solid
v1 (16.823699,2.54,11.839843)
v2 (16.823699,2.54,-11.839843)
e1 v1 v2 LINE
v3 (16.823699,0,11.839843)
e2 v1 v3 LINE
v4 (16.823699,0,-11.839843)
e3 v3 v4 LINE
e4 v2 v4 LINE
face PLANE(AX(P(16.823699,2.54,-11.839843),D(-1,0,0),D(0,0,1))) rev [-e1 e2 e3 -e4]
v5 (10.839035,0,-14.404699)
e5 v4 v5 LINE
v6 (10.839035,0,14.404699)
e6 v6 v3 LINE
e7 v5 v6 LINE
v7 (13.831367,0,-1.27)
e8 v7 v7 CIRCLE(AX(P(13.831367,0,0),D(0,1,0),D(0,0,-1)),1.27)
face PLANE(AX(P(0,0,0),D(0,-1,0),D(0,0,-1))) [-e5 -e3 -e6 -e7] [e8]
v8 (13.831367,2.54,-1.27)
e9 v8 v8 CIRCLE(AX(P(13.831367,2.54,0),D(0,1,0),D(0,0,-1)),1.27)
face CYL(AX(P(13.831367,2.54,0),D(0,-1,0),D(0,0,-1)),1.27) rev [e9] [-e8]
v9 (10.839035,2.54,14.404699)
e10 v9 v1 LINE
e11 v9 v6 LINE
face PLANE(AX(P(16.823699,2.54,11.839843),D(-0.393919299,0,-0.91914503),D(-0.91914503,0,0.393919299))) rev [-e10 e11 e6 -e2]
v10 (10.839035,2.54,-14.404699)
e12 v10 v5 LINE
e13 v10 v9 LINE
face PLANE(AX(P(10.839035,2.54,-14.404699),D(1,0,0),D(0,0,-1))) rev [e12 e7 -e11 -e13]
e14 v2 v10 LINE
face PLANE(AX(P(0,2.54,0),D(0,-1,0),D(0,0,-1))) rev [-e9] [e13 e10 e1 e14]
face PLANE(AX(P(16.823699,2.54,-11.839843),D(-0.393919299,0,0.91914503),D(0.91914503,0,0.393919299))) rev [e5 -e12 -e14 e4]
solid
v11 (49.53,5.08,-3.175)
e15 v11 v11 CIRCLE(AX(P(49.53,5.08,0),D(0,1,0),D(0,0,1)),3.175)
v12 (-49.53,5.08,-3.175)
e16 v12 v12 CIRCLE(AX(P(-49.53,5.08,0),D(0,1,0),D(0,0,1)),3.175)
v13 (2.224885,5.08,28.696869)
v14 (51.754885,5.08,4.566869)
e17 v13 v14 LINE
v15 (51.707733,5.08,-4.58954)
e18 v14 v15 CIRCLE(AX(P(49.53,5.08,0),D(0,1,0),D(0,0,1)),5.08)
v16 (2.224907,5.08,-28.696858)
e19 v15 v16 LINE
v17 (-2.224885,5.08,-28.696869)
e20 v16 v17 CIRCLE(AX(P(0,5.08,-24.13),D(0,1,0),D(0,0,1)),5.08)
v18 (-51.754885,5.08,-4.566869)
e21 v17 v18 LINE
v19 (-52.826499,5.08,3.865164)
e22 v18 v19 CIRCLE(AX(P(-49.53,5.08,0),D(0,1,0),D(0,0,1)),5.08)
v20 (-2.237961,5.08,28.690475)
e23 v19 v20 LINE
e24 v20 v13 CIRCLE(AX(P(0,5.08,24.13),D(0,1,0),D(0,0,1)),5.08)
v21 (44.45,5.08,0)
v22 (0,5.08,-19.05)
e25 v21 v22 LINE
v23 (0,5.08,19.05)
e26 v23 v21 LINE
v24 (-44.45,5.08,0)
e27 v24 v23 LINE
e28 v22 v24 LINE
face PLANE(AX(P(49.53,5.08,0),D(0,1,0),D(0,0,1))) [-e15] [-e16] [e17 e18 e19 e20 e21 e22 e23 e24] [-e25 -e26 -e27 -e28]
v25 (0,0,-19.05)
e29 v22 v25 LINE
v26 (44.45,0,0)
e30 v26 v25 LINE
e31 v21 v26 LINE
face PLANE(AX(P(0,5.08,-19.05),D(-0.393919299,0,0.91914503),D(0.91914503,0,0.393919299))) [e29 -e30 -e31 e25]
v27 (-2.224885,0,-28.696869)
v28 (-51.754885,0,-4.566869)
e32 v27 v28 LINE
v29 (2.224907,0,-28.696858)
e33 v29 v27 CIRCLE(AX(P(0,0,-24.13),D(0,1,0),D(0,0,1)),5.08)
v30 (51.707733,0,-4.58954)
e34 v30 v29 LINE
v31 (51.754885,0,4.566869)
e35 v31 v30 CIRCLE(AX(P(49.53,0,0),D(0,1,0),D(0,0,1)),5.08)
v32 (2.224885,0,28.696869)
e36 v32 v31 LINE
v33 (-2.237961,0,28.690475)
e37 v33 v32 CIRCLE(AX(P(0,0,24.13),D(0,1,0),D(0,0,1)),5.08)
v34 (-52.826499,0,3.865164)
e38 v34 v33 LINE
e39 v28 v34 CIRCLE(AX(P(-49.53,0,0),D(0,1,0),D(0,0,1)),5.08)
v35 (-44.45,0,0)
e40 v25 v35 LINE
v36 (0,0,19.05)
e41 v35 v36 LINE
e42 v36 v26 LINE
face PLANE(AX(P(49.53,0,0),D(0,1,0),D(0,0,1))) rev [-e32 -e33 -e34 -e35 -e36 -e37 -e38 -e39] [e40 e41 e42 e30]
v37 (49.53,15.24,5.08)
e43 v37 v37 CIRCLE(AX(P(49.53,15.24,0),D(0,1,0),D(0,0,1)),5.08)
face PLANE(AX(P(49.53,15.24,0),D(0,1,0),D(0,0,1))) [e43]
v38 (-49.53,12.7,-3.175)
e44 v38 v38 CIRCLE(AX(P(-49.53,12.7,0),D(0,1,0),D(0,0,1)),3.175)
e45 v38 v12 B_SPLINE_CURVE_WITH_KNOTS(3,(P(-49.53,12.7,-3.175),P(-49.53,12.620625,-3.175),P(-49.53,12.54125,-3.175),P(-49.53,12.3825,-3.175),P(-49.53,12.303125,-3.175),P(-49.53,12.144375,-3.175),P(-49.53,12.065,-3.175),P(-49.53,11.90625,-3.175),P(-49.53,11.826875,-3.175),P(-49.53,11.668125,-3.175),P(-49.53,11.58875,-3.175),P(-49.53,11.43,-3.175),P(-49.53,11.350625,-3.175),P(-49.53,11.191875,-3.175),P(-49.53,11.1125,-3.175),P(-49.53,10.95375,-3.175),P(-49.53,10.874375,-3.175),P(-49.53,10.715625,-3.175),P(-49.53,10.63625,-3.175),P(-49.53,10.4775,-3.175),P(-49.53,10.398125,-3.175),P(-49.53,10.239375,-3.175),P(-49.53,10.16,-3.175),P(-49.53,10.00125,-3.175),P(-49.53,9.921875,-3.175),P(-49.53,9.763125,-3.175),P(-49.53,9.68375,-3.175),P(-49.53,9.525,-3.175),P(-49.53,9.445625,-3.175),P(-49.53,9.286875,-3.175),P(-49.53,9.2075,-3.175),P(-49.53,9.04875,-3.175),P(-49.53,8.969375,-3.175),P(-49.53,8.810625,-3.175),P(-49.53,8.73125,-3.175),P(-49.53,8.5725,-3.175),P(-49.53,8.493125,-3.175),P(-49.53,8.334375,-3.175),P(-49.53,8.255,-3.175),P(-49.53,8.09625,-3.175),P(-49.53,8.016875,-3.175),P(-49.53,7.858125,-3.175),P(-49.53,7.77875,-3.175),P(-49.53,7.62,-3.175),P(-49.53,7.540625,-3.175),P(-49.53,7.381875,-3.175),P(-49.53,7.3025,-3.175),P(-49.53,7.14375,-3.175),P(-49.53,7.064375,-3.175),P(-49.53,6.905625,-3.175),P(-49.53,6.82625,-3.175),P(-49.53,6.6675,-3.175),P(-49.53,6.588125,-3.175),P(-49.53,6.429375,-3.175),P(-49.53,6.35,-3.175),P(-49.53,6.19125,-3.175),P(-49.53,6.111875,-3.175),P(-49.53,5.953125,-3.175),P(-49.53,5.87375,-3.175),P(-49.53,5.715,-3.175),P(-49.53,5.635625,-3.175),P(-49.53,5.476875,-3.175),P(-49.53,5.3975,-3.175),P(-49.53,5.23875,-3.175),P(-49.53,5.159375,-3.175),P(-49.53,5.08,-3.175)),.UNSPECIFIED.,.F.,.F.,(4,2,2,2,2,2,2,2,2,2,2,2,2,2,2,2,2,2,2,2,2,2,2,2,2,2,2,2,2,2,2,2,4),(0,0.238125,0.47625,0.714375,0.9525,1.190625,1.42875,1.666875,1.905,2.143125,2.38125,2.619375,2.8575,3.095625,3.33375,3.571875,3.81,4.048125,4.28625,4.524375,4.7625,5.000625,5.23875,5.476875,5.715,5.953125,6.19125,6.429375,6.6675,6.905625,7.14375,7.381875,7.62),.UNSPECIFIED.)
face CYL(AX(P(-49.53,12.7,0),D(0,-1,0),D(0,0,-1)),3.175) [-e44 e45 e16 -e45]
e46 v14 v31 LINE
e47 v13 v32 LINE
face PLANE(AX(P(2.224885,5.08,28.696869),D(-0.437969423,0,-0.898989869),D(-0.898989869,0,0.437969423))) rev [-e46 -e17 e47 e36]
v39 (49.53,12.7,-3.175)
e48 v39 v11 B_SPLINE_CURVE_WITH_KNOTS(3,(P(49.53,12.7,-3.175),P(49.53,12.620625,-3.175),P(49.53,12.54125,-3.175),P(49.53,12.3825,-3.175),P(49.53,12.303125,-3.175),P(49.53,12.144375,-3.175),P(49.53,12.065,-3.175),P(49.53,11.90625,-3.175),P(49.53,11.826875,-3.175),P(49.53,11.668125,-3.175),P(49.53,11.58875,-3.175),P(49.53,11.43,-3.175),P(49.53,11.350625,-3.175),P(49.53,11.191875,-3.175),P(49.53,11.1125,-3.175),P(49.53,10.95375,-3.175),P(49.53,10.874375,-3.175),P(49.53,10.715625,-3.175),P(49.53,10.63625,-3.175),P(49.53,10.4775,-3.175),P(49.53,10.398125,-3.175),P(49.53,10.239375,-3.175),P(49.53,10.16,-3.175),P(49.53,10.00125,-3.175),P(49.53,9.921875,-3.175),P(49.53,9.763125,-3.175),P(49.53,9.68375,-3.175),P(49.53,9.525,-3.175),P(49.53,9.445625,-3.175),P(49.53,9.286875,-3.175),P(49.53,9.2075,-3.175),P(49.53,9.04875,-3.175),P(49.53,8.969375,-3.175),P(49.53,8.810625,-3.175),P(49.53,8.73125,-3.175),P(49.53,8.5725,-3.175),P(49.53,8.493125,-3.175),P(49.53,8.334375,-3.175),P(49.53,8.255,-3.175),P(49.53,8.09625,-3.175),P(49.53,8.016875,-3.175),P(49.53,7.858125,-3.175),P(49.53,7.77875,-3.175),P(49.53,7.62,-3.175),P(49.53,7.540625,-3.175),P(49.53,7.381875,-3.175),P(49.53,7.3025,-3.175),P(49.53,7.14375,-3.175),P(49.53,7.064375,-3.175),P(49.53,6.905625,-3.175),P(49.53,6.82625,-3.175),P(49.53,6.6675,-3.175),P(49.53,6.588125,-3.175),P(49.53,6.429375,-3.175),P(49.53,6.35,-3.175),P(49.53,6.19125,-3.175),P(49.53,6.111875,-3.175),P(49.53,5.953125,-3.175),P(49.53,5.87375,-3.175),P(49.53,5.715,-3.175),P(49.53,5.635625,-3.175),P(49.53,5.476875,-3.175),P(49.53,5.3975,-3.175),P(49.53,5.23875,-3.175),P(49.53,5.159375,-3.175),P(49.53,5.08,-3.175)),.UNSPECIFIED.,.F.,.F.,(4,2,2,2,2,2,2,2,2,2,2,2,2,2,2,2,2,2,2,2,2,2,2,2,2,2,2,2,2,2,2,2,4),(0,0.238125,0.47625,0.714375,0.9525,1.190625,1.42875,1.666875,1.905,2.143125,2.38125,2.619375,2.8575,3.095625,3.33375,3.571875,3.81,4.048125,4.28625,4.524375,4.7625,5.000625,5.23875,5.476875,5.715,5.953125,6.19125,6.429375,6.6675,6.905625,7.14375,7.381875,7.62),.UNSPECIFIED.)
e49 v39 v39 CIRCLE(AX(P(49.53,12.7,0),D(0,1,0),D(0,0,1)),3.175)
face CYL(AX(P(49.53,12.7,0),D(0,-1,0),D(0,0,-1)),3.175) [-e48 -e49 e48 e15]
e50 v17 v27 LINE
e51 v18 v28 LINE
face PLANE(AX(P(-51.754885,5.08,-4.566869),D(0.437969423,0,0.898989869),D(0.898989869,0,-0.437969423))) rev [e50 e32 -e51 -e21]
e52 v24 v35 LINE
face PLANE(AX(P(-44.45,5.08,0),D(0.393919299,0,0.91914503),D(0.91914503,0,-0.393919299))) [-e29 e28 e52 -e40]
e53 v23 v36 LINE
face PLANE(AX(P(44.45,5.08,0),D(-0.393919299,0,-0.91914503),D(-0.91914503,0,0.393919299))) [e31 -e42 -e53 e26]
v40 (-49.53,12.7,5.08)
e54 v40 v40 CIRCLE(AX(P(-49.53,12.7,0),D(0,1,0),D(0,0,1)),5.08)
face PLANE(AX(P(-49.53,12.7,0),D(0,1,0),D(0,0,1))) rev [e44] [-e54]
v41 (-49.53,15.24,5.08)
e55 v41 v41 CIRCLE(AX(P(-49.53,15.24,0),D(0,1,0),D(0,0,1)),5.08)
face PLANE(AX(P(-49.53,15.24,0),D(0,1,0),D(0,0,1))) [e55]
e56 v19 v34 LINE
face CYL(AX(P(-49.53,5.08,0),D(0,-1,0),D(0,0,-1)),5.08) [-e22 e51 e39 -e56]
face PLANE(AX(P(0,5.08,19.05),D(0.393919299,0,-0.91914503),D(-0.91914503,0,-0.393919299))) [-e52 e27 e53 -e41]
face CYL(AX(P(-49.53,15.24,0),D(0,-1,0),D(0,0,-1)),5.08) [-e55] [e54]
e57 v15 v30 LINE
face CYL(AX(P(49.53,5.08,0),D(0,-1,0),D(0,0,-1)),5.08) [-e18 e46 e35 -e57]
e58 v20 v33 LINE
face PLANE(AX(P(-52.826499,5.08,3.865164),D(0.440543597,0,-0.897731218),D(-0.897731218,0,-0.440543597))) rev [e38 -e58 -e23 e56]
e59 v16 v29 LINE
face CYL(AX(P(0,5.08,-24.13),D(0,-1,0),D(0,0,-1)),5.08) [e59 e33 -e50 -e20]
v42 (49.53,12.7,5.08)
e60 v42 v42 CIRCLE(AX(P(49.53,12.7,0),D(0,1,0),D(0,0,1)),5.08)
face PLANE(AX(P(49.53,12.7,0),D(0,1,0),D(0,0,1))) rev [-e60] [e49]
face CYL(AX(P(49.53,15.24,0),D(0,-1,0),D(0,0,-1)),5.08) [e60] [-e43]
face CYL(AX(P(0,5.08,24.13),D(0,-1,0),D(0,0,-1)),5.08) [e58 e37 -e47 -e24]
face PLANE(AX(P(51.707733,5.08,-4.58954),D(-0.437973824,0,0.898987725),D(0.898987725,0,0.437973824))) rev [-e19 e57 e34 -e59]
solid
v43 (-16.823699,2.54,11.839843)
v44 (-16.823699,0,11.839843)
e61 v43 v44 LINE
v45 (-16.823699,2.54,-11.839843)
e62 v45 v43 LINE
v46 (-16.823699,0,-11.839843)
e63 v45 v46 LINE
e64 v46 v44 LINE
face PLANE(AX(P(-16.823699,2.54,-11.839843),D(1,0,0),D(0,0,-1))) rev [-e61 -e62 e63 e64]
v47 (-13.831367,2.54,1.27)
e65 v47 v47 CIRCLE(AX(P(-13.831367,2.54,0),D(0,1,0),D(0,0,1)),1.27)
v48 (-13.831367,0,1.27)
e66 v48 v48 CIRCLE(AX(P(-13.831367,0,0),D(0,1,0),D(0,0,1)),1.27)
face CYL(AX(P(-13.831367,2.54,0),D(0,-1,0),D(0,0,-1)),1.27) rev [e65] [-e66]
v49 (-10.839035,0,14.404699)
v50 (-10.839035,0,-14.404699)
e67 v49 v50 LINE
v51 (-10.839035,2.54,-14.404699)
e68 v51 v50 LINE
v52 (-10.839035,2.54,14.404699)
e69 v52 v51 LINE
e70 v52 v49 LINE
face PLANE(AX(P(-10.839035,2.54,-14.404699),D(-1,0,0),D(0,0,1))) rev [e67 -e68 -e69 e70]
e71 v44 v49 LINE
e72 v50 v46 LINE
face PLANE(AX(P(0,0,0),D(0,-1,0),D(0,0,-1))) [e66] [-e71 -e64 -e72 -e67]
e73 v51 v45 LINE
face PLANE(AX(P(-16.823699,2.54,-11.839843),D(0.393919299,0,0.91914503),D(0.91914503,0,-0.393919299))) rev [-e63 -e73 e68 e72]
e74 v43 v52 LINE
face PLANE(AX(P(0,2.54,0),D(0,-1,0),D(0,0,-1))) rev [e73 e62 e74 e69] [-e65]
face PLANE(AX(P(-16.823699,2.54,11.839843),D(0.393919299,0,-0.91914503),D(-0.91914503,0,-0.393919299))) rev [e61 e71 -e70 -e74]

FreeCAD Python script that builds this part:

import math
import FreeCAD as App
import Part
import Sketcher
from FreeCAD import Vector
Q = App.Units.Quantity


def add_polygon(sketch, points):
    """Adds a closed chain of lines whose ends are joined by coincident constraints."""
    first, n = sketch.GeometryCount, len(points)
    for a, b in zip(points, points[1:] + points[:1]):
        sketch.addGeometry(Part.LineSegment(App.Vector(*a, 0), App.Vector(*b, 0)), False)
    for i in range(n):
        sketch.addConstraint(Sketcher.Constraint("Coincident", first + i, 2, first + (i + 1) % n, 1))

doc = App.newDocument("Part")
body = doc.addObject("PartDesign::Body", "Body")

# Sketch on XZ plane
sketch1 = body.newObject("Sketcher::SketchObject", "Sketch")
sketch1.AttachmentSupport = (doc.getObject("XZ_Plane"), [""])
sketch1.MapMode = "FlatFace"
sketch1.addGeometry(Part.LineSegment(Vector(-2.2, -28.7, 0), Vector(-51.8, -4.6, 0)), False)  # 0
sketch1.addGeometry(Part.ArcOfCircle(Part.Circle(Vector(-49.5, 0, 0), Vector(0, 0, 1), 5.1), math.radians(130), math.radians(244)), False)  # 1
sketch1.addGeometry(Part.LineSegment(Vector(-52.8, 3.9, 0), Vector(-2.2, 28.7, 0)), False)  # 2
sketch1.addGeometry(Part.ArcOfCircle(Part.Circle(Vector(0, 24.1, 0), Vector(0, 0, 1), 5.1), math.radians(64), math.radians(116)), False)  # 3
sketch1.addGeometry(Part.LineSegment(Vector(2.2, 28.7, 0), Vector(51.8, 4.6, 0)), False)  # 4
sketch1.addGeometry(Part.ArcOfCircle(Part.Circle(Vector(49.5, 0, 0), Vector(0, 0, 1), 5.1), math.radians(-65), math.radians(64)), False)  # 5
sketch1.addGeometry(Part.LineSegment(Vector(51.7, -4.6, 0), Vector(2.2, -28.7, 0)), False)  # 6
sketch1.addGeometry(Part.ArcOfCircle(Part.Circle(Vector(0, -24.1, 0), Vector(0, 0, 1), 5.1), math.radians(-116), math.radians(-64)), False)  # 7
add_polygon(sketch1, [(-44.5, 0), (0, -19.1), (44.5, 0), (0, 19.1)])  # lines 8-11
sketch1.addConstraint(Sketcher.Constraint("Tangent", 0, 2, 1, 2))
sketch1.addConstraint(Sketcher.Constraint("Coincident", 1, 1, 2, 1))
sketch1.addConstraint(Sketcher.Constraint("Tangent", 2, 2, 3, 2))
sketch1.addConstraint(Sketcher.Constraint("Tangent", 3, 1, 4, 1))
sketch1.addConstraint(Sketcher.Constraint("Tangent", 4, 2, 5, 2))
sketch1.addConstraint(Sketcher.Constraint("Coincident", 5, 1, 6, 1))
sketch1.addConstraint(Sketcher.Constraint("Tangent", 6, 2, 7, 2))
sketch1.addConstraint(Sketcher.Constraint("Tangent", 7, 1, 0, 1))
sketch1.addConstraint(Sketcher.Constraint("Equal", 1, 3))
sketch1.addConstraint(Sketcher.Constraint("Equal", 3, 5))
sketch1.addConstraint(Sketcher.Constraint("Equal", 5, 7))
sketch1.addConstraint(Sketcher.Constraint("Symmetric", 1, 3, 5, 3, -1, 1))
sketch1.addConstraint(Sketcher.Constraint("Symmetric", 3, 3, 7, 3, -1, 1))
sketch1.addConstraint(Sketcher.Constraint("Symmetric", 8, 2, 10, 2, -1, 1))
sketch1.addConstraint(Sketcher.Constraint("Symmetric", 9, 2, 11, 2, -1, 1))
sketch1.addConstraint(Sketcher.Constraint("PointOnObject", 1, 3, -1))
sketch1.addConstraint(Sketcher.Constraint("PointOnObject", 3, 3, -2))
sketch1.addConstraint(Sketcher.Constraint("PointOnObject", 8, 2, -2))
sketch1.addConstraint(Sketcher.Constraint("PointOnObject", 9, 2, -1))
sketch1.addConstraint(Sketcher.Constraint("Radius", 1, Q("0.2 in")))
sketch1.addConstraint(Sketcher.Constraint("DistanceX", 1, 3, 5, 3, Q("3.9 in")))
sketch1.addConstraint(Sketcher.Constraint("DistanceY", 7, 3, 3, 3, Q("1.9 in")))
sketch1.addConstraint(Sketcher.Constraint("DistanceY", 7, 3, 8, 2, Q("0.2 in")))
sketch1.addConstraint(Sketcher.Constraint("DistanceX", 9, 2, 5, 3, Q("0.2 in")))
sketch1.addConstraint(Sketcher.Constraint("DistanceX", 1, 1, -1, 1, 52.826499))
sketch1.addConstraint(Sketcher.Constraint("DistanceY", 5, 1, -1, 1, 4.58954))
pad1 = body.newObject("PartDesign::Pad", "Pad")
pad1.Profile = sketch1
pad1.Length = Q("0.2 in")
pad1.Reversed = True

# Sketch on XZ plane
sketch2 = body.newObject("Sketcher::SketchObject", "Sketch001")
sketch2.AttachmentSupport = (doc.getObject("XZ_Plane"), [""])
sketch2.MapMode = "FlatFace"
sketch2.AttachmentOffset = App.Placement(Vector(0, 0, -0.2 * 25.4), App.Rotation())
sketch2.addGeometry(Part.Circle(Vector(-49.5, 0, 0), Vector(0, 0, 1), 3.2), False)
sketch2.addGeometry(Part.Circle(Vector(49.5, 0, 0), Vector(0, 0, 1), 3.2), False)
sketch2.addConstraint(Sketcher.Constraint("Equal", 0, 1))
sketch2.addConstraint(Sketcher.Constraint("Symmetric", 0, 3, 1, 3, -1, 1))
sketch2.addConstraint(Sketcher.Constraint("PointOnObject", 0, 3, -1))
sketch2.addConstraint(Sketcher.Constraint("Diameter", 0, Q("0.25 in")))
sketch2.addConstraint(Sketcher.Constraint("DistanceX", 0, 3, 1, 3, Q("3.9 in")))
pad2 = body.newObject("PartDesign::Pad", "Pad001")
pad2.Profile = sketch2
pad2.Length = Q("0.3 in")
pad2.Reversed = True

# Sketch on XZ plane
sketch3 = body.newObject("Sketcher::SketchObject", "Sketch002")
sketch3.AttachmentSupport = (doc.getObject("XZ_Plane"), [""])
sketch3.MapMode = "FlatFace"
sketch3.AttachmentOffset = App.Placement(Vector(0, 0, -0.5 * 25.4), App.Rotation())
sketch3.addGeometry(Part.Circle(Vector(50, 0, 0), Vector(0, 0, 1), 5), False)
sketch3.addConstraint(Sketcher.Constraint("PointOnObject", 0, 3, -1))
sketch3.addConstraint(Sketcher.Constraint("Diameter", 0, Q("0.4 in")))
sketch3.addConstraint(Sketcher.Constraint("DistanceX", -1, 1, 0, 3, Q("1.95 in")))
pad3 = body.newObject("PartDesign::Pad", "Pad002")
pad3.Profile = sketch3
pad3.Length = Q("0.1 in")
pad3.Reversed = True

# Sketch on XZ plane
sketch4 = body.newObject("Sketcher::SketchObject", "Sketch003")
sketch4.AttachmentSupport = (doc.getObject("XZ_Plane"), [""])
sketch4.MapMode = "FlatFace"
sketch4.AttachmentOffset = App.Placement(Vector(0, 0, -0.5 * 25.4), App.Rotation())
sketch4.addGeometry(Part.Circle(Vector(-50, 0, 0), Vector(0, 0, 1), 5), False)
sketch4.addConstraint(Sketcher.Constraint("PointOnObject", 0, 3, -1))
sketch4.addConstraint(Sketcher.Constraint("Diameter", 0, Q("0.4 in")))
sketch4.addConstraint(Sketcher.Constraint("DistanceX", 0, 3, -1, 1, Q("1.95 in")))
pad4 = body.newObject("PartDesign::Pad", "Pad003")
pad4.Profile = sketch4
pad4.Length = Q("0.1 in")
pad4.Reversed = True
body2 = doc.addObject("PartDesign::Body", "Body001")

# Sketch on XZ plane
sketch5 = body2.newObject("Sketcher::SketchObject", "Sketch004")
sketch5.AttachmentSupport = (doc.getObject("XZ_Plane001"), [""])
sketch5.MapMode = "FlatFace"
add_polygon(sketch5, [(-10.8, 14.4), (-10.8, -14.4), (-16.8, -11.8), (-16.8, 11.8)])  # lines 0-3
sketch5.addGeometry(Part.Circle(Vector(-13.8, 0, 0), Vector(0, 0, 1), 1.3), False)  # 4
sketch5.addConstraint(Sketcher.Constraint("Vertical", 0))
sketch5.addConstraint(Sketcher.Constraint("Vertical", 2))
sketch5.addConstraint(Sketcher.Constraint("PointOnObject", 4, 3, -1))
sketch5.addConstraint(Sketcher.Constraint("Equal", 1, 3))
sketch5.addConstraint(Sketcher.Constraint("Diameter", 4, Q("0.1 in")))
sketch5.addConstraint(Sketcher.Constraint("DistanceY", 0, 2, 0, 1, 28.809399))
sketch5.addConstraint(Sketcher.Constraint("DistanceY", 0, 2, -1, 1, 14.404699))
sketch5.addConstraint(Sketcher.Constraint("DistanceX", 1, 2, -1, 1, 16.823699))
sketch5.addConstraint(Sketcher.Constraint("Distance", 1, 6.511121))
sketch5.addConstraint(Sketcher.Constraint("DistanceY", 2, 1, 2, 2, 23.679686))
sketch5.addConstraint(Sketcher.Constraint("DistanceX", 4, 3, -1, 1, 13.831367))
pad5 = body2.newObject("PartDesign::Pad", "Pad004")
pad5.Profile = sketch5
pad5.Length = Q("0.1 in")
pad5.Reversed = True
body3 = doc.addObject("PartDesign::Body", "Body002")

# Sketch on XZ plane
sketch6 = body3.newObject("Sketcher::SketchObject", "Sketch005")
sketch6.AttachmentSupport = (doc.getObject("XZ_Plane002"), [""])
sketch6.MapMode = "FlatFace"
add_polygon(sketch6, [(16.8, -11.8), (10.8, -14.4), (10.8, 14.4), (16.8, 11.8)])  # lines 0-3
sketch6.addGeometry(Part.Circle(Vector(13.8, 0, 0), Vector(0, 0, 1), 1.3), False)  # 4
sketch6.addConstraint(Sketcher.Constraint("Vertical", 1))
sketch6.addConstraint(Sketcher.Constraint("Vertical", 3))
sketch6.addConstraint(Sketcher.Constraint("PointOnObject", 4, 3, -1))
sketch6.addConstraint(Sketcher.Constraint("Equal", 0, 2))
sketch6.addConstraint(Sketcher.Constraint("Diameter", 4, Q("0.1 in")))
sketch6.addConstraint(Sketcher.Constraint("DistanceY", 1, 1, 1, 2, 28.809399))
sketch6.addConstraint(Sketcher.Constraint("DistanceY", 0, 2, -1, 1, 14.404699))
sketch6.addConstraint(Sketcher.Constraint("DistanceX", -1, 1, 2, 2, 16.823699))
sketch6.addConstraint(Sketcher.Constraint("Distance", 0, 6.511121))
sketch6.addConstraint(Sketcher.Constraint("DistanceY", 3, 2, 3, 1, 23.679686))
sketch6.addConstraint(Sketcher.Constraint("DistanceX", -1, 1, 4, 3, 13.831367))
pad6 = body3.newObject("PartDesign::Pad", "Pad005")
pad6.Profile = sketch6
pad6.Length = Q("0.1 in")
pad6.Reversed = True

doc.recompute()
